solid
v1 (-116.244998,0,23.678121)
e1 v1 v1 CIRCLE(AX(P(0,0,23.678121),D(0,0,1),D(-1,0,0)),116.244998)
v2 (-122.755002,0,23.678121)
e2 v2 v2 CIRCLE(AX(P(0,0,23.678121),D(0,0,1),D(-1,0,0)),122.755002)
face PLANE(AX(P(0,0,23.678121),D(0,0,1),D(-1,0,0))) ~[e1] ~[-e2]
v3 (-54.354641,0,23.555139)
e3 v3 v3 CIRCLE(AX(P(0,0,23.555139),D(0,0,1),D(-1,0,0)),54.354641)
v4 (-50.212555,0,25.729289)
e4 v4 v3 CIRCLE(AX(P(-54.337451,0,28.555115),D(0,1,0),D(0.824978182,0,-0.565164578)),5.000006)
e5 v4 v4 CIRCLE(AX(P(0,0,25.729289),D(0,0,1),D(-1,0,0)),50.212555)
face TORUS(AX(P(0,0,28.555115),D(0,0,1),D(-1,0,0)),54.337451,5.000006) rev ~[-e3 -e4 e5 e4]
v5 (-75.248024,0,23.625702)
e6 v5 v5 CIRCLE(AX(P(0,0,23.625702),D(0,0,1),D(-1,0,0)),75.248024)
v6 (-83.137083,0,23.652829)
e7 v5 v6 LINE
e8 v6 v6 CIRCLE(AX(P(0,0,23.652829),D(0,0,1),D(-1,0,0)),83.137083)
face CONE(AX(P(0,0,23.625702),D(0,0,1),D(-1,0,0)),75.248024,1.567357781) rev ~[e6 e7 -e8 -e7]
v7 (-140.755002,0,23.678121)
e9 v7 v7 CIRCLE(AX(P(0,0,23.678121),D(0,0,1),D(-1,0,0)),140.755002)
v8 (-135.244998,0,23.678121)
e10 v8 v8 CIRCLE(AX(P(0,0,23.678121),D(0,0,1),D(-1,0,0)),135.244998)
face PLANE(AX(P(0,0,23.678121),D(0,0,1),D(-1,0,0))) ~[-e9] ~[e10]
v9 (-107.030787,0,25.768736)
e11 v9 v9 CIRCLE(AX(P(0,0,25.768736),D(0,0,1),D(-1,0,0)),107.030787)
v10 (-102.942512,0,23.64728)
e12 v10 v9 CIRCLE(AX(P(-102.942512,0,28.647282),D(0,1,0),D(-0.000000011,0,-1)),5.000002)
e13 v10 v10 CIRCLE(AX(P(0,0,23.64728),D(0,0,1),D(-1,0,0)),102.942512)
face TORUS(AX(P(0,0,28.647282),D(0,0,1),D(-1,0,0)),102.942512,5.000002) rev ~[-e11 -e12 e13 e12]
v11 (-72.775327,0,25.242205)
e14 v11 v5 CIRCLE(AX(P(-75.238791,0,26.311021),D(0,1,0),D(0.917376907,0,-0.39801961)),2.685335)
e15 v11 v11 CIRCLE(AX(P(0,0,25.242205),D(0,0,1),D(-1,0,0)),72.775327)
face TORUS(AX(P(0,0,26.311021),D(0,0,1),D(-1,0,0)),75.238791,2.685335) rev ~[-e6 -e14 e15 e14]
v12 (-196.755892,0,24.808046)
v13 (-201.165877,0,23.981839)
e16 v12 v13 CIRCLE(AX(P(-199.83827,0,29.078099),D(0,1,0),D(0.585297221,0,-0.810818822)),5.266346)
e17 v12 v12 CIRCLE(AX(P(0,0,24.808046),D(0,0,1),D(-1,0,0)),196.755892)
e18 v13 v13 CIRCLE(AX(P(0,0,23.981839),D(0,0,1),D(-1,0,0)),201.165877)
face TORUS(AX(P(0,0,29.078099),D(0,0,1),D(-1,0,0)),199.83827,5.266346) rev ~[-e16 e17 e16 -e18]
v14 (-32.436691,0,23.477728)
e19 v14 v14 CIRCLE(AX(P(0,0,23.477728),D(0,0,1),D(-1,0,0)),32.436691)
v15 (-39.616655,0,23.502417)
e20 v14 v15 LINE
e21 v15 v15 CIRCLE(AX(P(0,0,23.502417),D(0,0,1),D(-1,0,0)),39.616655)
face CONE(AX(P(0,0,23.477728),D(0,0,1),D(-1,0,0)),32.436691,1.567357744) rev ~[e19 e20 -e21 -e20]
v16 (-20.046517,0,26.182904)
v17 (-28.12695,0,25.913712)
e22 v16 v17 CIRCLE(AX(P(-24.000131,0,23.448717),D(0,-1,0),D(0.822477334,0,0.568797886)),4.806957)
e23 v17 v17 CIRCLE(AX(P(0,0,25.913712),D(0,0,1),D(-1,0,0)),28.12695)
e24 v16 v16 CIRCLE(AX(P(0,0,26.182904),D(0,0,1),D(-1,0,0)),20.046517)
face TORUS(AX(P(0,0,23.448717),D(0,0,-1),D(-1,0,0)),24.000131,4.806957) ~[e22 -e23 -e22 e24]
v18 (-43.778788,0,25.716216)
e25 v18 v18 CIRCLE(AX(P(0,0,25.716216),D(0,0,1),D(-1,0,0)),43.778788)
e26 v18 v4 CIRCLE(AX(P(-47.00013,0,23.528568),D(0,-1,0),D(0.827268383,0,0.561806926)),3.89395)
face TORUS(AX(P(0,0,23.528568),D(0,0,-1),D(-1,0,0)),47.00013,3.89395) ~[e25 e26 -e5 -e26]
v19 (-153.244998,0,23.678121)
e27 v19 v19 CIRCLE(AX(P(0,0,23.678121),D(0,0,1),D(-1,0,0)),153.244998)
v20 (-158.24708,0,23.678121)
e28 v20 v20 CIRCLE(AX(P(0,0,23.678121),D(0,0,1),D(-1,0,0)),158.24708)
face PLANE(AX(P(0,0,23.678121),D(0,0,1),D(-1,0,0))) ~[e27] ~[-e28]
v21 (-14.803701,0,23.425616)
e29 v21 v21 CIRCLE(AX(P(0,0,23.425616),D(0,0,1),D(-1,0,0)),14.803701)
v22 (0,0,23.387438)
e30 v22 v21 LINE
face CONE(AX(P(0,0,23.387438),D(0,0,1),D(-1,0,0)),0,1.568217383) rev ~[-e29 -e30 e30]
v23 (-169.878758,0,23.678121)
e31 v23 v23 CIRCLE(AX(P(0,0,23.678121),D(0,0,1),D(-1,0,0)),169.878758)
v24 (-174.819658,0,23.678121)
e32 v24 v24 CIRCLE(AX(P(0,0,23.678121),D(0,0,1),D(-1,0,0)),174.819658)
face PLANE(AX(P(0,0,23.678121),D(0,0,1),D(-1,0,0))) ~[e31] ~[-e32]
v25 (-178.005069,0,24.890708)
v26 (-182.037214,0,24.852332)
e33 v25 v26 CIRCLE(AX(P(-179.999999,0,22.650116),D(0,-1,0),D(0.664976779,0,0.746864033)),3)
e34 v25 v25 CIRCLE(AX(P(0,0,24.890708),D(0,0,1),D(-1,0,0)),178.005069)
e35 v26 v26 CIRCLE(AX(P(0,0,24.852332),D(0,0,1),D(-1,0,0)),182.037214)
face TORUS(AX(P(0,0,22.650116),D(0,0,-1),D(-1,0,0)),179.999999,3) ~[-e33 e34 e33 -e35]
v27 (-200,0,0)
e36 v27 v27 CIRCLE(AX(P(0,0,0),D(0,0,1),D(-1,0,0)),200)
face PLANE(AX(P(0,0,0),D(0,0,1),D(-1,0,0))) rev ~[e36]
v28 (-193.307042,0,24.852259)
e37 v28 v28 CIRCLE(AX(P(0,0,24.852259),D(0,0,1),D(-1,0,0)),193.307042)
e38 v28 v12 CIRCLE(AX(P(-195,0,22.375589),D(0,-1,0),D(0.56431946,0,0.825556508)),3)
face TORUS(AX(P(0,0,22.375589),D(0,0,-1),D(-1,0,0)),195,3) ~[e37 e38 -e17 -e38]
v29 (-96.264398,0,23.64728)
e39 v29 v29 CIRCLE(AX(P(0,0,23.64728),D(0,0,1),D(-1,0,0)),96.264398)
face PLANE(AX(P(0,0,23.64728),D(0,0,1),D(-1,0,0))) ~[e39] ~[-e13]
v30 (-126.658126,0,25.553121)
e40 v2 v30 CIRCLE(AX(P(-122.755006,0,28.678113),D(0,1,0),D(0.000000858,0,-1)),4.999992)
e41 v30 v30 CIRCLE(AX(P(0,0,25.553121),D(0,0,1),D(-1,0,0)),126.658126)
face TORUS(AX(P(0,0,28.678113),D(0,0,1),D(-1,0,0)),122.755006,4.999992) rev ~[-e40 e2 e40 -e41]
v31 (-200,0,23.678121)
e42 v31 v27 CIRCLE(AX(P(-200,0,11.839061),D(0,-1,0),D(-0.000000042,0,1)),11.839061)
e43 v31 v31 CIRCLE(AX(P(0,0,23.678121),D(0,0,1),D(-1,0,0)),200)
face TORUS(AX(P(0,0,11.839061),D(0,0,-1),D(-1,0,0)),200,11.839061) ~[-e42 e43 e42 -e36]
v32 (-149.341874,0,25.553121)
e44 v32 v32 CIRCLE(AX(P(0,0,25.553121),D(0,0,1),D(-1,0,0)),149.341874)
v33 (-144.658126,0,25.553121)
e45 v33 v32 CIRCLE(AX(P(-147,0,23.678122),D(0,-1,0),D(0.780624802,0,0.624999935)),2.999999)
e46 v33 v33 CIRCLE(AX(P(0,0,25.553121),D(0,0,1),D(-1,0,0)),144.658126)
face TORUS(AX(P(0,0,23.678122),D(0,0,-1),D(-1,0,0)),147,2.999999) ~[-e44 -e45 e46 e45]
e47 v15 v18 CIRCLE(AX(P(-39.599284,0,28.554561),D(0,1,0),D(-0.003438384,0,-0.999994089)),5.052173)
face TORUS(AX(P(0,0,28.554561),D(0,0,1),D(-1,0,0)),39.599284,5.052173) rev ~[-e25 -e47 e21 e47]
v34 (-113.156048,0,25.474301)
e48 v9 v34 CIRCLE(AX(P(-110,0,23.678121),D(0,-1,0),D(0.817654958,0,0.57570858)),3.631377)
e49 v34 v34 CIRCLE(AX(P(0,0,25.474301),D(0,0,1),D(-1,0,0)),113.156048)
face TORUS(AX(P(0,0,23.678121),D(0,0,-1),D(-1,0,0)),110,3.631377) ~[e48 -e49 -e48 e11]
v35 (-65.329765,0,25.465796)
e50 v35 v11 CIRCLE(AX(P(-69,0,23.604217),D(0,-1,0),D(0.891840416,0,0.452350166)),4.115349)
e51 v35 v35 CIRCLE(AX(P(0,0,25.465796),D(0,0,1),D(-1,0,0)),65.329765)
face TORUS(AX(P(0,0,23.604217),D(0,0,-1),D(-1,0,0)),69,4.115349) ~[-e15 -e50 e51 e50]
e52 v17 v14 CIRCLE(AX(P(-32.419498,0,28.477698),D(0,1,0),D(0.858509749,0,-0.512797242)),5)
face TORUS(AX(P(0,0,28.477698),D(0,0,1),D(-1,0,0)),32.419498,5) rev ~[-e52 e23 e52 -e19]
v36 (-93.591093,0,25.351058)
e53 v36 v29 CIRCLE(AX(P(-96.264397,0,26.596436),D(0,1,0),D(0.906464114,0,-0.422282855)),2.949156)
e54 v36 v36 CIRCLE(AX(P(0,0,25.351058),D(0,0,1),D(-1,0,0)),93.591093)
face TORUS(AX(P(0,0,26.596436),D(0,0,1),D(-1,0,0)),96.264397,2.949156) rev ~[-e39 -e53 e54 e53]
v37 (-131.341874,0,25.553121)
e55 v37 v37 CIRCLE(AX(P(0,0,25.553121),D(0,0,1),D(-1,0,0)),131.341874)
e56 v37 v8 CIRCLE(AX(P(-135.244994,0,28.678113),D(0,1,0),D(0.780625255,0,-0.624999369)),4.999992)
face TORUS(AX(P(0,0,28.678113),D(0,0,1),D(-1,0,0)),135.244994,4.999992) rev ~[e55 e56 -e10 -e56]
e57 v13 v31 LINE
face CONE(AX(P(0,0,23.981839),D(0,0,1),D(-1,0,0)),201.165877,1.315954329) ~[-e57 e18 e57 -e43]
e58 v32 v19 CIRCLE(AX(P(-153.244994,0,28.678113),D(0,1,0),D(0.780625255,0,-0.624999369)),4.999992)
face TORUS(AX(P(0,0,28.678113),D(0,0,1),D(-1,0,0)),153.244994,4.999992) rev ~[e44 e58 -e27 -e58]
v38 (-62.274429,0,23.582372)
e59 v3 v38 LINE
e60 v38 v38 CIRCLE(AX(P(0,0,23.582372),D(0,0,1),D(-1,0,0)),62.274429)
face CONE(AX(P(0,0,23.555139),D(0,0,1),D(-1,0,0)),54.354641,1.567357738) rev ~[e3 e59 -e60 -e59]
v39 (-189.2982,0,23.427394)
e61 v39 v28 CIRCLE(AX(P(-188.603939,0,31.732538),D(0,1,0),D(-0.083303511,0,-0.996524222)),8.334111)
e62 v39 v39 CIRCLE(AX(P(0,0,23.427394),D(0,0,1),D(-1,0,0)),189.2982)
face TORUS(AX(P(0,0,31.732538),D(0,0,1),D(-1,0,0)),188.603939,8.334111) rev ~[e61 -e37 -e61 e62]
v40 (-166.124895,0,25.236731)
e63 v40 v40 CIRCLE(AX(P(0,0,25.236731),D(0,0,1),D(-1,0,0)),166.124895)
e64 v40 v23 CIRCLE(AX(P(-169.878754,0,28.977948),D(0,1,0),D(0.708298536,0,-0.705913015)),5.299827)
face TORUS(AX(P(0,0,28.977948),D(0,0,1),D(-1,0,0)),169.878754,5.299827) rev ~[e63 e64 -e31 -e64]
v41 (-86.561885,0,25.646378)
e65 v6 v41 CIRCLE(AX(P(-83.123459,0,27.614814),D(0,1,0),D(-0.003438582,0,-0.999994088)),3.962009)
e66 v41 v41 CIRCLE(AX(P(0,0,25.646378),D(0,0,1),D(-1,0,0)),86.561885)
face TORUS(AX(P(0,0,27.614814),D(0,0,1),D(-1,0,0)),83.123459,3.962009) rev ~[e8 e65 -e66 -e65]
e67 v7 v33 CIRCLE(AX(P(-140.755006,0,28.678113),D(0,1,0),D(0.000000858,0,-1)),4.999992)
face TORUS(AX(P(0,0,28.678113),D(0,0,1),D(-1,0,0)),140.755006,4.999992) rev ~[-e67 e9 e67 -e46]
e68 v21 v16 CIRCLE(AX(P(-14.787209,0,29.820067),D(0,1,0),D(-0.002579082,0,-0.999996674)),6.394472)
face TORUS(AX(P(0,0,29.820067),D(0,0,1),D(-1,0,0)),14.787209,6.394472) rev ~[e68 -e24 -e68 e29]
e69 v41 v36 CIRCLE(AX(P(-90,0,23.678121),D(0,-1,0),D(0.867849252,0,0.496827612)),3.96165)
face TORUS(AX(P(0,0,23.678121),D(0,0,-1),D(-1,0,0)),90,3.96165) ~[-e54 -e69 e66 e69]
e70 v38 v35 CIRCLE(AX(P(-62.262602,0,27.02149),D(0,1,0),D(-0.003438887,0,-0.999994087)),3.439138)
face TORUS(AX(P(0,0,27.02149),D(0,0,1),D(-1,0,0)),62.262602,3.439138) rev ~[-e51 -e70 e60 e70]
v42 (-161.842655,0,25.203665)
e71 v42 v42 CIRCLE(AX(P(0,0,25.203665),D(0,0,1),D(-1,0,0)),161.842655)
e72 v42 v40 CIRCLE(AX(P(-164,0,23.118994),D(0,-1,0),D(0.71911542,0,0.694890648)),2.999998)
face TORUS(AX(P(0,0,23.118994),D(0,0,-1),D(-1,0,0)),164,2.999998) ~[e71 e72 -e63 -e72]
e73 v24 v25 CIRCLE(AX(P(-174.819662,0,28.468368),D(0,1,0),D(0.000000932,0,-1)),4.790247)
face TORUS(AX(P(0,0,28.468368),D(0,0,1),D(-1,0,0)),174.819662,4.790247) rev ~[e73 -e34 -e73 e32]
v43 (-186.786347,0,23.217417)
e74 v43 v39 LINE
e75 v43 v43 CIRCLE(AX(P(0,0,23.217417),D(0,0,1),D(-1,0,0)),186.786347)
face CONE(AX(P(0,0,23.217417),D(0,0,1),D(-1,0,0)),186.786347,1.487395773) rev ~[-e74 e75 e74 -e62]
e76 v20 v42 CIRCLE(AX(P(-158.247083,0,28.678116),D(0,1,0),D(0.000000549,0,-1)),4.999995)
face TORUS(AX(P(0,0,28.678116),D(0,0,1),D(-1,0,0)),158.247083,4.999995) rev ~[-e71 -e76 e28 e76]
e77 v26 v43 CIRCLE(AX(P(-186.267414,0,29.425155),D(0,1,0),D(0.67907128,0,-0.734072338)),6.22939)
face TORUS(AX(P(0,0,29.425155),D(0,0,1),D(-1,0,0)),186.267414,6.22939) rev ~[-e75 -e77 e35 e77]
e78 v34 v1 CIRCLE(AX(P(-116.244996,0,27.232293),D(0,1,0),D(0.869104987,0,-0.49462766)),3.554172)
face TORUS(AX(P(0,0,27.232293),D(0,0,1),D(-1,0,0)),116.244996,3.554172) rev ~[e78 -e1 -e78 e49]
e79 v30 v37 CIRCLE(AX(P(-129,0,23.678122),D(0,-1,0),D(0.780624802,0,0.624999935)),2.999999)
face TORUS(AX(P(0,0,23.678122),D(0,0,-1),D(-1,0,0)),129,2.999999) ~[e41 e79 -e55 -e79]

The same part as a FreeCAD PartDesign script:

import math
import FreeCAD as App
import Part
import Sketcher

V = App.Vector
Q = App.Units.Quantity

doc = App.newDocument("Part")
params = doc.addObject("Spreadsheet::Sheet", "Params")
for row, (alias, value) in enumerate([
    ("sketch1_radius", "5 mm"),
    ("sketch1_radius2", "5.000002 mm"),
    ("sketch1_radius3", "2.999999 mm"),
    ("sketch1_width", "200 mm"),
    ("revolution_angle", "360 deg"),
], start=1):
    params.set(f"A{row}", alias)
    params.set(f"B{row}", "=" + value)
    params.setAlias(f"B{row}", alias)

body = doc.addObject("PartDesign::Body", "Body")

# Sketch on XZ plane
sketch1 = body.newObject("Sketcher::SketchObject", "Sketch")
sketch1.AttachmentSupport = (doc.getObject("XZ_Plane"), [""])
sketch1.MapMode = "FlatFace"
sketch1.addGeometry([
    Part.LineSegment(V(-200, 0, 0), V(0, 0, 0)),  # 0
    Part.LineSegment(V(0, 0, 0), V(0, 23.4, 0)),  # 1
    Part.LineSegment(V(0, 23.4, 0), V(-14.8, 23.4, 0)),  # 2
    Part.ArcOfCircle(Part.Circle(V(-14.8, 29.8, 0), V(0, 0, 1), 6.4), math.radians(-145), math.radians(-90)),  # 3
    Part.ArcOfCircle(Part.Circle(V(-24, 23.4, 0), V(0, 0, 1), 4.8), math.radians(35), math.radians(149)),  # 4
    Part.ArcOfCircle(Part.Circle(V(-32.4, 28.5, 0), V(0, 0, 1), 5), math.radians(-90), math.radians(-31)),  # 5
    Part.LineSegment(V(-32.4, 23.5, 0), V(-39.6, 23.5, 0)),  # 6
    Part.ArcOfCircle(Part.Circle(V(-39.6, 28.6, 0), V(0, 0, 1), 5.1), math.radians(-146), math.radians(-90)),  # 7
    Part.ArcOfCircle(Part.Circle(V(-47, 23.5, 0), V(0, 0, 1), 3.9), math.radians(34), math.radians(146)),  # 8
    Part.ArcOfCircle(Part.Circle(V(-54.3, 28.6, 0), V(0, 0, 1), 5), math.radians(-90), math.radians(-34)),  # 9
    Part.LineSegment(V(-54.4, 23.6, 0), V(-62.3, 23.6, 0)),  # 10
    Part.ArcOfCircle(Part.Circle(V(-62.3, 27, 0), V(0, 0, 1), 3.4), math.radians(-153), math.radians(-90)),  # 11
    Part.ArcOfCircle(Part.Circle(V(-69, 23.6, 0), V(0, 0, 1), 4.1), math.radians(27), math.radians(157)),  # 12
    Part.ArcOfCircle(Part.Circle(V(-75.2, 26.3, 0), V(0, 0, 1), 2.7), math.radians(-90), math.radians(-23)),  # 13
    Part.LineSegment(V(-75.2, 23.6, 0), V(-83.1, 23.7, 0)),  # 14
    Part.ArcOfCircle(Part.Circle(V(-83.1, 27.6, 0), V(0, 0, 1), 4), math.radians(-150), math.radians(-90)),  # 15
    Part.ArcOfCircle(Part.Circle(V(-90, 23.7, 0), V(0, 0, 1), 4), math.radians(30), math.radians(155)),  # 16
    Part.ArcOfCircle(Part.Circle(V(-96.3, 26.6, 0), V(0, 0, 1), 2.9), math.radians(-90), math.radians(-25)),  # 17
    Part.LineSegment(V(-96.3, 23.6, 0), V(-102.9, 23.6, 0)),  # 18
    Part.ArcOfCircle(Part.Circle(V(-102.9, 28.6, 0), V(0, 0, 1), 5), math.radians(-145), math.radians(-90)),  # 19
    Part.ArcOfCircle(Part.Circle(V(-110, 23.7, 0), V(0, 0, 1), 3.6), math.radians(35), math.radians(150)),  # 20
    Part.ArcOfCircle(Part.Circle(V(-116.2, 27.2, 0), V(0, 0, 1), 3.6), math.radians(-90), math.radians(-30)),  # 21
    Part.LineSegment(V(-116.2, 23.7, 0), V(-122.8, 23.7, 0)),  # 22
    Part.ArcOfCircle(Part.Circle(V(-122.8, 28.7, 0), V(0, 0, 1), 5), math.radians(-141), math.radians(-90)),  # 23
    Part.ArcOfCircle(Part.Circle(V(-129, 23.7, 0), V(0, 0, 1), 3), math.radians(39), math.radians(141)),  # 24
    Part.ArcOfCircle(Part.Circle(V(-135.2, 28.7, 0), V(0, 0, 1), 5), math.radians(-90), math.radians(-39)),  # 25
    Part.LineSegment(V(-135.2, 23.7, 0), V(-140.8, 23.7, 0)),  # 26
    Part.ArcOfCircle(Part.Circle(V(-140.8, 28.7, 0), V(0, 0, 1), 5), math.radians(-141), math.radians(-90)),  # 27
    Part.ArcOfCircle(Part.Circle(V(-147, 23.7, 0), V(0, 0, 1), 3), math.radians(39), math.radians(141)),  # 28
    Part.ArcOfCircle(Part.Circle(V(-153.2, 28.7, 0), V(0, 0, 1), 5), math.radians(-90), math.radians(-39)),  # 29
    Part.LineSegment(V(-153.2, 23.7, 0), V(-158.2, 23.7, 0)),  # 30
    Part.ArcOfCircle(Part.Circle(V(-158.2, 28.7, 0), V(0, 0, 1), 5), math.radians(-136), math.radians(-90)),  # 31
    Part.ArcOfCircle(Part.Circle(V(-164, 23.1, 0), V(0, 0, 1), 3), math.radians(44), math.radians(135)),  # 32
    Part.ArcOfCircle(Part.Circle(V(-169.9, 29, 0), V(0, 0, 1), 5.3), math.radians(-90), math.radians(-45)),  # 33
    Part.LineSegment(V(-169.9, 23.7, 0), V(-174.8, 23.7, 0)),  # 34
    Part.ArcOfCircle(Part.Circle(V(-174.8, 28.5, 0), V(0, 0, 1), 4.8), math.radians(-132), math.radians(-90)),  # 35
    Part.ArcOfCircle(Part.Circle(V(-180, 22.7, 0), V(0, 0, 1), 3), math.radians(48), math.radians(133)),  # 36
    Part.ArcOfCircle(Part.Circle(V(-186.3, 29.4, 0), V(0, 0, 1), 6.2), math.radians(-95), math.radians(-47)),  # 37
    Part.LineSegment(V(-186.8, 23.2, 0), V(-189.3, 23.4, 0)),  # 38
    Part.ArcOfCircle(Part.Circle(V(-188.6, 31.7, 0), V(0, 0, 1), 8.3), math.radians(-124), math.radians(-95)),  # 39
    Part.ArcOfCircle(Part.Circle(V(-195, 22.4, 0), V(0, 0, 1), 3), math.radians(56), math.radians(126)),  # 40
    Part.ArcOfCircle(Part.Circle(V(-199.8, 29.1, 0), V(0, 0, 1), 5.3), math.radians(-105), math.radians(-54)),  # 41
    Part.LineSegment(V(-201.2, 24, 0), V(-200, 23.7, 0)),  # 42
    Part.ArcOfCircle(Part.Circle(V(-200, 11.8, 0), V(0, 0, 1), 11.8), math.radians(90), math.radians(270)),  # 43
], False)
sketch1.addConstraint([
    Sketcher.Constraint("Coincident", 0, 2, 1, 1),
    Sketcher.Constraint("Coincident", 1, 2, 2, 1),
    Sketcher.Constraint("Tangent", 2, 2, 3, 2),
    Sketcher.Constraint("Tangent", 3, 1, 4, 1),
    Sketcher.Constraint("Tangent", 4, 2, 5, 2),
    Sketcher.Constraint("Tangent", 5, 1, 6, 1),
    Sketcher.Constraint("Tangent", 6, 2, 7, 2),
    Sketcher.Constraint("Tangent", 7, 1, 8, 1),
    Sketcher.Constraint("Tangent", 8, 2, 9, 2),
    Sketcher.Constraint("Tangent", 9, 1, 10, 1),
    Sketcher.Constraint("Tangent", 10, 2, 11, 2),
    Sketcher.Constraint("Tangent", 11, 1, 12, 1),
    Sketcher.Constraint("Tangent", 12, 2, 13, 2),
    Sketcher.Constraint("Tangent", 13, 1, 14, 1),
    Sketcher.Constraint("Tangent", 14, 2, 15, 2),
    Sketcher.Constraint("Tangent", 15, 1, 16, 1),
    Sketcher.Constraint("Tangent", 16, 2, 17, 2),
    Sketcher.Constraint("Tangent", 17, 1, 18, 1),
    Sketcher.Constraint("Tangent", 18, 2, 19, 2),
    Sketcher.Constraint("Tangent", 19, 1, 20, 1),
    Sketcher.Constraint("Tangent", 20, 2, 21, 2),
    Sketcher.Constraint("Tangent", 21, 1, 22, 1),
    Sketcher.Constraint("Tangent", 22, 2, 23, 2),
    Sketcher.Constraint("Tangent", 23, 1, 24, 1),
    Sketcher.Constraint("Tangent", 24, 2, 25, 2),
    Sketcher.Constraint("Tangent", 25, 1, 26, 1),
    Sketcher.Constraint("Tangent", 26, 2, 27, 2),
    Sketcher.Constraint("Tangent", 27, 1, 28, 1),
    Sketcher.Constraint("Tangent", 28, 2, 29, 2),
    Sketcher.Constraint("Tangent", 29, 1, 30, 1),
    Sketcher.Constraint("Tangent", 30, 2, 31, 2),
    Sketcher.Constraint("Tangent", 31, 1, 32, 1),
    Sketcher.Constraint("Tangent", 32, 2, 33, 2),
    Sketcher.Constraint("Tangent", 33, 1, 34, 1),
    Sketcher.Constraint("Tangent", 34, 2, 35, 2),
    Sketcher.Constraint("Tangent", 35, 1, 36, 1),
    Sketcher.Constraint("Tangent", 36, 2, 37, 2),
    Sketcher.Constraint("Tangent", 37, 1, 38, 1),
    Sketcher.Constraint("Tangent", 38, 2, 39, 2),
    Sketcher.Constraint("Tangent", 39, 1, 40, 1),
    Sketcher.Constraint("Tangent", 40, 2, 41, 2),
    Sketcher.Constraint("Tangent", 41, 1, 42, 1),
    Sketcher.Constraint("Coincident", 42, 2, 43, 1),
    Sketcher.Constraint("Tangent", 43, 2, 0, 1),
    Sketcher.Constraint("Horizontal", 0),
    Sketcher.Constraint("Vertical", 1),
    Sketcher.Constraint("Horizontal", 18),
    Sketcher.Constraint("Horizontal", 22),
    Sketcher.Constraint("Horizontal", 26),
    Sketcher.Constraint("Horizontal", 30),
    Sketcher.Constraint("Horizontal", 34),
    Sketcher.Constraint("Coincident", 0, 2, -1, 1),
    Sketcher.Constraint("Equal", 23, 25),
    Sketcher.Constraint("Equal", 25, 27),
    Sketcher.Constraint("Equal", 24, 28),
    Sketcher.Constraint("Equal", 27, 29),
    Sketcher.Constraint("Equal", 28, 32),
    Sketcher.Constraint("Equal", 32, 36),
    Sketcher.Constraint("Equal", 36, 40),
    Sketcher.Constraint("Parallel", 6, 10),
    Sketcher.Constraint("Parallel", 10, 14),
    Sketcher.Constraint("Horizontal", 16, 3, 20, 3),
    Sketcher.Constraint("Horizontal", 20, 3, 24, 3),
    Sketcher.Constraint("Horizontal", 23, 3, 25, 3),
    Sketcher.Constraint("Horizontal", 24, 3, 28, 3),
    Sketcher.Constraint("Horizontal", 27, 3, 29, 3),
    Sketcher.Constraint("Horizontal", 28, 3, 21, 1),
    Sketcher.Constraint("Horizontal", 30, 2, 33, 1),
    Sketcher.Constraint("Horizontal", 34, 2, 42, 2),
    Sketcher.Constraint("Vertical", 43, 3, 42, 2),
    Sketcher.Constraint("Radius", 5, Q("5 mm")),
    Sketcher.Constraint("Radius", 19, Q("5.000002 mm")),
    Sketcher.Constraint("Radius", 24, Q("2.999999 mm")),
    Sketcher.Constraint("DistanceX", 0, 1, 0, 2, Q("200 mm")),
    Sketcher.Constraint("DistanceX", 12, 3, -1, 1, Q("69 mm")),
    Sketcher.Constraint("DistanceX", 16, 3, -1, 1, Q("90 mm")),
    Sketcher.Constraint("DistanceX", 20, 3, -1, 1, Q("110 mm")),
    Sketcher.Constraint("DistanceX", 24, 3, -1, 1, Q("129 mm")),
    Sketcher.Constraint("DistanceX", 28, 3, -1, 1, Q("147 mm")),
    Sketcher.Constraint("DistanceX", 32, 3, -1, 1, Q("164 mm")),
    Sketcher.Constraint("DistanceX", 36, 3, -1, 1, Q("179.999999 mm")),
    Sketcher.Constraint("DistanceX", 40, 3, -1, 1, Q("195 mm")),
    Sketcher.Constraint("Radius", 3, Q("6.394472 mm")),
    Sketcher.Constraint("Radius", 8, Q("3.89395 mm")),
    Sketcher.Constraint("Radius", 11, Q("3.439138 mm")),
    Sketcher.Constraint("Radius", 12, Q("4.115349 mm")),
    Sketcher.Constraint("Radius", 15, Q("3.962009 mm")),
    Sketcher.Constraint("Radius", 16, Q("3.96165 mm")),
    Sketcher.Constraint("Radius", 21, Q("3.554172 mm")),
    Sketcher.Constraint("Radius", 23, Q("4.999992 mm")),
    Sketcher.Constraint("Radius", 37, Q("6.22939 mm")),
    Sketcher.Constraint("Radius", 39, Q("8.334111 mm")),
    Sketcher.Constraint("Radius", 43, Q("11.839061 mm")),
    Sketcher.Constraint("DistanceX", 34, 2, 34, 1, Q("4.9409 mm")),
    Sketcher.Constraint("Radius", 4, Q("4.806957 mm")),
    Sketcher.Constraint("Radius", 7, Q("5.052173 mm")),
    Sketcher.Constraint("Radius", 9, Q("5.000006 mm")),
    Sketcher.Constraint("Radius", 13, Q("2.685335 mm")),
    Sketcher.Constraint("Radius", 17, Q("2.949156 mm")),
    Sketcher.Constraint("Radius", 20, Q("3.631377 mm")),
    Sketcher.Constraint("Radius", 31, Q("4.999995 mm")),
    Sketcher.Constraint("Radius", 33, Q("5.299827 mm")),
    Sketcher.Constraint("Radius", 35, Q("4.790247 mm")),
    Sketcher.Constraint("Radius", 41, Q("5.266346 mm")),
    Sketcher.Constraint("DistanceX", 5, 3, -1, 1, Q("32.419498 mm")),
    Sketcher.Constraint("DistanceY", -1, 1, 41, 3, Q("29.078099 mm")),
    Sketcher.Constraint("DistanceX", 2, 2, -1, 1, Q("14.803701 mm")),
    Sketcher.Constraint("DistanceY", -1, 1, 13, 1, Q("23.625702 mm")),
    Sketcher.Constraint("DistanceX", 17, 1, -1, 1, Q("96.264398 mm")),
    Sketcher.Constraint("DistanceX", 38, 2, -1, 1, Q("189.2982 mm")),
    Sketcher.Constraint("DistanceX", 30, 2, 30, 1, Q("5.002082 mm")),
    Sketcher.Constraint("DistanceY", 1, 1, 1, 2, Q("23.387438 mm")),
    Sketcher.Constraint("DistanceX", 3, 3, -1, 1, Q("14.787209 mm")),
    Sketcher.Constraint("DistanceX", 4, 3, -1, 1, Q("24.000131 mm")),
    Sketcher.Constraint("DistanceY", -1, 1, 7, 3, Q("28.554561 mm")),
    Sketcher.Constraint("DistanceX", 8, 3, -1, 1, Q("47.00013 mm")),
    Sketcher.Constraint("DistanceX", 9, 3, -1, 1, Q("54.337451 mm")),
    Sketcher.Constraint("DistanceY", -1, 1, 11, 3, Q("27.02149 mm")),
    Sketcher.Constraint("DistanceX", 13, 3, -1, 1, Q("75.238791 mm")),
    Sketcher.Constraint("DistanceX", 39, 3, -1, 1, Q("188.603939 mm")),
    Sketcher.Constraint("DistanceY", -1, 1, 40, 3, Q("22.375589 mm")),
])
sketch1.setExpression("Constraints[70]", "Params.sketch1_radius")
sketch1.setExpression("Constraints[71]", "Params.sketch1_radius2")
sketch1.setExpression("Constraints[72]", "Params.sketch1_radius3")
sketch1.setExpression("Constraints[73]", "Params.sketch1_width")
revolution = body.newObject("PartDesign::Revolution", "Revolution")
revolution.Profile = sketch1
revolution.ReferenceAxis = (sketch1, ["V_Axis"])
revolution.setExpression("Angle", "Params.revolution_angle")

doc.recompute()
